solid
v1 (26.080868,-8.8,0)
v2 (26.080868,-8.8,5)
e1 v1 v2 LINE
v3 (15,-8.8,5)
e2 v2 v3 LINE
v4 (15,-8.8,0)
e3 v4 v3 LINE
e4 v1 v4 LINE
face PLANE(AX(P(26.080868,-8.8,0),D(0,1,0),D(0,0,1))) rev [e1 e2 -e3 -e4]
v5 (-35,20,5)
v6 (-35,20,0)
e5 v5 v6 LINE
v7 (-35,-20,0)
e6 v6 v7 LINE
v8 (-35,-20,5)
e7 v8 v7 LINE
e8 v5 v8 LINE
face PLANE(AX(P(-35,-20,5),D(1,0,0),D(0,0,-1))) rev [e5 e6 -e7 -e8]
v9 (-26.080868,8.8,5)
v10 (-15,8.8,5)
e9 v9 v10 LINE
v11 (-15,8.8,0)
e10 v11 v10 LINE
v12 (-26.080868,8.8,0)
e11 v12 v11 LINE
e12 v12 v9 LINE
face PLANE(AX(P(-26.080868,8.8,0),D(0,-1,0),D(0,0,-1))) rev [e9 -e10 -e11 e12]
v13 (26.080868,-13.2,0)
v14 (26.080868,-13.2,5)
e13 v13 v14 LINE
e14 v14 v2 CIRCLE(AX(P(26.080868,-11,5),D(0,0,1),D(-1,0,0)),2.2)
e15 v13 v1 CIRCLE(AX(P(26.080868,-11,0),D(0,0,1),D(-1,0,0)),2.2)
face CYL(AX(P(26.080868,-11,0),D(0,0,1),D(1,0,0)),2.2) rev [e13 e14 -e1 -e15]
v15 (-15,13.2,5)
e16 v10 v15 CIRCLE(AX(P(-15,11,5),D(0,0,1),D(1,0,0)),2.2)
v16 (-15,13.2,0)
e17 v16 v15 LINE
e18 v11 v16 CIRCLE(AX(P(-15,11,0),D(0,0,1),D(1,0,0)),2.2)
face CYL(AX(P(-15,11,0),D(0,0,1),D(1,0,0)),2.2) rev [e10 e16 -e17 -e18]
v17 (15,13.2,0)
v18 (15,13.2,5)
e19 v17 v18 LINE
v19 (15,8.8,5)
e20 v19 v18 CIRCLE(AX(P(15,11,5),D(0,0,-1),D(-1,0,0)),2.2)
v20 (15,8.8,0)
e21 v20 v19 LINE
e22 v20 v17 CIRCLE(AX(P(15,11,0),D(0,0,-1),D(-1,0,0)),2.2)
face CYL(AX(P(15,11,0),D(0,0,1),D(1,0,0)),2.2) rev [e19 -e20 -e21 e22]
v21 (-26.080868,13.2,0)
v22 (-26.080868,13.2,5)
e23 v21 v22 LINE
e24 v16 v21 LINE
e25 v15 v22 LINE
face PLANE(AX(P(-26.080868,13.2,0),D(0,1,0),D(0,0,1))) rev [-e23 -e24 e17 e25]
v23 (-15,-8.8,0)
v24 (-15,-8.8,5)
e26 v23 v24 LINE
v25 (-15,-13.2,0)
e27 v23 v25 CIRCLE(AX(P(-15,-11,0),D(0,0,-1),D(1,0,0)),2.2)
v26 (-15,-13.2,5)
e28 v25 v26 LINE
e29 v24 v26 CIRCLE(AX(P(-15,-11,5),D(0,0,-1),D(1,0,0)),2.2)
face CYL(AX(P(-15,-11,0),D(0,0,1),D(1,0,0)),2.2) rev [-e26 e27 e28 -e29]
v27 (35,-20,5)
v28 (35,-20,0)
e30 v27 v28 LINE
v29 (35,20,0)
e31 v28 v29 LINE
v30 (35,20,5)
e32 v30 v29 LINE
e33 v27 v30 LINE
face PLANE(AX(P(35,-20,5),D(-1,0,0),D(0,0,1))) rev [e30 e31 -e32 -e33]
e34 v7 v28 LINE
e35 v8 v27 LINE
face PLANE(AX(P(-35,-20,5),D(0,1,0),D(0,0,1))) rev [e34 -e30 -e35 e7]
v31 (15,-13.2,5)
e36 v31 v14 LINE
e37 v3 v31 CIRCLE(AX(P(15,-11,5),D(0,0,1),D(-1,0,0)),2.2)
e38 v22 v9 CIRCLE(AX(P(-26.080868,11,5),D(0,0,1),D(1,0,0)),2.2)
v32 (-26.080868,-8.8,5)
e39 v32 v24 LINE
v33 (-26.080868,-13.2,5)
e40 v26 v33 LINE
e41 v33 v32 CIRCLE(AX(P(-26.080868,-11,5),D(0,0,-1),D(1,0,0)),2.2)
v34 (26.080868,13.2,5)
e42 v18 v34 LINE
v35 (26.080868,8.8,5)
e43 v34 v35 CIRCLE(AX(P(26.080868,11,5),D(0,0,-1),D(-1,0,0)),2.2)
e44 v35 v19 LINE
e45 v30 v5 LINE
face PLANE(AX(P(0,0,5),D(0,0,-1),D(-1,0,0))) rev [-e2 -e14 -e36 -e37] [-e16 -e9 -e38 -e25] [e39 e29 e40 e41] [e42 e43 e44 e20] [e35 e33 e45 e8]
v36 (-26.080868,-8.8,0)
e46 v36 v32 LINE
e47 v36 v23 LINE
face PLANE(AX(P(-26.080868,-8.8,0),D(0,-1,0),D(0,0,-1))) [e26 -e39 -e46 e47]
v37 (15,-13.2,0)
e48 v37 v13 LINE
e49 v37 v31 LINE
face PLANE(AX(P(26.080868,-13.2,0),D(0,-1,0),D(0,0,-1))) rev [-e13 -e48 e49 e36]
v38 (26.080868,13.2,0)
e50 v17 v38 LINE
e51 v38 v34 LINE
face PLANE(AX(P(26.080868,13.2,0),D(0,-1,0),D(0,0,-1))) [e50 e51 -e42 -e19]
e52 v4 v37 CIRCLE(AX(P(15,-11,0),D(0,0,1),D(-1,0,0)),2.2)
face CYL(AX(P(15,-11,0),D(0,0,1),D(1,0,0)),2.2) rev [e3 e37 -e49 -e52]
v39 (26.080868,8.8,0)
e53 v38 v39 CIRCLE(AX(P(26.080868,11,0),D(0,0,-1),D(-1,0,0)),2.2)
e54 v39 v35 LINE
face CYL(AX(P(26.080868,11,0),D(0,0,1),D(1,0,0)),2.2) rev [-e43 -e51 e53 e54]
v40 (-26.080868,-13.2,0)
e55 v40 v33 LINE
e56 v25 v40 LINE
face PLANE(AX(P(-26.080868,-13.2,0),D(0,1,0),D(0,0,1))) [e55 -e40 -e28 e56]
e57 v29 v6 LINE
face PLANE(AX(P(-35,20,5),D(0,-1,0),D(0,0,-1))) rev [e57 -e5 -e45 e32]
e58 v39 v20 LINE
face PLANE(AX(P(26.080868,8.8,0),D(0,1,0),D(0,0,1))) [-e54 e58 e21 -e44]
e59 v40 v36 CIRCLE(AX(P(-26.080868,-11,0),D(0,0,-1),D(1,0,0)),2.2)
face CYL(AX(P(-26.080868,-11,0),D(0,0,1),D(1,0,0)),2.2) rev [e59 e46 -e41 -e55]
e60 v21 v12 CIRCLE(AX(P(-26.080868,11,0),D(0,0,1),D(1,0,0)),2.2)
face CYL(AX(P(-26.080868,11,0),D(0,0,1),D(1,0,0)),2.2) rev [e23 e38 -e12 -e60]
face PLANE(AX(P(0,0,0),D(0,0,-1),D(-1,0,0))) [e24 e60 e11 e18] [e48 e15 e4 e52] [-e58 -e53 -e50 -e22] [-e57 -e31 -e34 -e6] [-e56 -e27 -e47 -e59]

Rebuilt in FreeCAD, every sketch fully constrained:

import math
import FreeCAD as App
import Part
import Sketcher


def add_polygon(sketch, points):
    """Adds a closed chain of lines whose ends are joined by coincident constraints."""
    first, n = sketch.GeometryCount, len(points)
    for a, b in zip(points, points[1:] + points[:1]):
        sketch.addGeometry(Part.LineSegment(App.Vector(*a, 0), App.Vector(*b, 0)), False)
    for i in range(n):
        sketch.addConstraint(Sketcher.Constraint("Coincident", first + i, 2, first + (i + 1) % n, 1))

doc = App.newDocument("Part")
body = doc.addObject("PartDesign::Body", "Body")

sketch1 = body.newObject("Sketcher::SketchObject", "Sketch")
sketch1.AttachmentSupport = (doc.getObject("XY_Plane"), [""])
sketch1.MapMode = "FlatFace"
add_polygon(sketch1, [(-35, 20), (-35, -20), (35, -20), (35, 20)])
sketch1.addConstraint(Sketcher.Constraint("Vertical", 0))
sketch1.addConstraint(Sketcher.Constraint("Horizontal", 1))
sketch1.addConstraint(Sketcher.Constraint("Vertical", 2))
sketch1.addConstraint(Sketcher.Constraint("Horizontal", 3))
sketch1.addConstraint(Sketcher.Constraint("Symmetric", 0, 2, 2, 2, -1, 1))
sketch1.addConstraint(Sketcher.Constraint("DistanceX", 1, 1, 1, 2, 70.0))
sketch1.addConstraint(Sketcher.Constraint("DistanceY", 0, 2, 0, 1, 40.0))
pad1 = body.newObject("PartDesign::Pad", "Pad")
pad1.Profile = sketch1
pad1.Length = 5

sketch2 = body.newObject("Sketcher::SketchObject", "Sketch001")
sketch2.AttachmentSupport = (doc.getObject("XY_Plane"), [""])
sketch2.MapMode = "FlatFace"
sketch2.AttachmentOffset = App.Placement(App.Vector(0, 0, 5), App.Rotation())
sketch2.addGeometry(Part.LineSegment(App.Vector(-15, 13.2, 0), App.Vector(-26.080868, 13.2, 0)), False)
sketch2.addGeometry(Part.ArcOfCircle(Part.Circle(App.Vector(-26.080868, 11, 0), App.Vector(0, 0, 1), 2.2), math.radians(90), math.radians(270)), False)
sketch2.addGeometry(Part.LineSegment(App.Vector(-26.080868, 8.8, 0), App.Vector(-15, 8.8, 0)), False)
sketch2.addGeometry(Part.ArcOfCircle(Part.Circle(App.Vector(-15, 11, 0), App.Vector(0, 0, 1), 2.2), math.radians(-90), math.radians(90)), False)
sketch2.addConstraint(Sketcher.Constraint("Tangent", 0, 2, 1, 1))
sketch2.addConstraint(Sketcher.Constraint("Tangent", 1, 2, 2, 1))
sketch2.addConstraint(Sketcher.Constraint("Tangent", 2, 2, 3, 1))
sketch2.addConstraint(Sketcher.Constraint("Tangent", 3, 2, 0, 1))
sketch2.addConstraint(Sketcher.Constraint("Horizontal", 0))
sketch2.addConstraint(Sketcher.Constraint("Horizontal", 2))
sketch2.addConstraint(Sketcher.Constraint("Radius", 1, 2.2))
sketch2.addConstraint(Sketcher.Constraint("DistanceY", -1, 1, 1, 3, 11.0))
sketch2.addConstraint(Sketcher.Constraint("DistanceX", 3, 3, -1, 1, 15.0))
sketch2.addConstraint(Sketcher.Constraint("DistanceX", 0, 2, 0, 1, 11.080868))
pocket1 = body.newObject("PartDesign::Pocket", "Pocket")
pocket1.Profile = sketch2
pocket1.Type = "ThroughAll"
doc.recompute()

mirrored = body.newObject("PartDesign::Mirrored", "Mirrored")
mirrored.Originals = [pocket1]
mirrored.MirrorPlane = (doc.getObject("YZ_Plane"), [""])
body.Tip = mirrored
doc.recompute()

mirrored2 = body.newObject("PartDesign::Mirrored", "Mirrored001")
mirrored2.Originals = [pocket1]
mirrored2.MirrorPlane = (doc.getObject("XZ_Plane"), [""])
body.Tip = mirrored2

sketch3 = body.newObject("Sketcher::SketchObject", "Sketch002")
sketch3.AttachmentSupport = (doc.getObject("XY_Plane"), [""])
sketch3.MapMode = "FlatFace"
sketch3.AttachmentOffset = App.Placement(App.Vector(0, 0, 5), App.Rotation())
sketch3.addGeometry(Part.LineSegment(App.Vector(15, -13.2, 0), App.Vector(26.080868, -13.2, 0)), False)
sketch3.addGeometry(Part.ArcOfCircle(Part.Circle(App.Vector(26.080868, -11, 0), App.Vector(0, 0, 1), 2.2), math.radians(-90), math.radians(90)), False)
sketch3.addGeometry(Part.LineSegment(App.Vector(26.080868, -8.8, 0), App.Vector(15, -8.8, 0)), False)
sketch3.addGeometry(Part.ArcOfCircle(Part.Circle(App.Vector(15, -11, 0), App.Vector(0, 0, 1), 2.2), math.radians(90), math.radians(270)), False)
sketch3.addConstraint(Sketcher.Constraint("Tangent", 0, 2, 1, 1))
sketch3.addConstraint(Sketcher.Constraint("Tangent", 1, 2, 2, 1))
sketch3.addConstraint(Sketcher.Constraint("Tangent", 2, 2, 3, 1))
sketch3.addConstraint(Sketcher.Constraint("Tangent", 3, 2, 0, 1))
sketch3.addConstraint(Sketcher.Constraint("Horizontal", 0))
sketch3.addConstraint(Sketcher.Constraint("Horizontal", 2))
sketch3.addConstraint(Sketcher.Constraint("Radius", 1, 2.2))
sketch3.addConstraint(Sketcher.Constraint("DistanceY", 1, 3, -1, 1, 11.0))
sketch3.addConstraint(Sketcher.Constraint("DistanceX", -1, 1, 3, 3, 15.0))
sketch3.addConstraint(Sketcher.Constraint("DistanceX", 0, 1, 0, 2, 11.080868))
pocket2 = body.newObject("PartDesign::Pocket", "Pocket001")
pocket2.Profile = sketch3
pocket2.Type = "ThroughAll"

doc.recompute()
